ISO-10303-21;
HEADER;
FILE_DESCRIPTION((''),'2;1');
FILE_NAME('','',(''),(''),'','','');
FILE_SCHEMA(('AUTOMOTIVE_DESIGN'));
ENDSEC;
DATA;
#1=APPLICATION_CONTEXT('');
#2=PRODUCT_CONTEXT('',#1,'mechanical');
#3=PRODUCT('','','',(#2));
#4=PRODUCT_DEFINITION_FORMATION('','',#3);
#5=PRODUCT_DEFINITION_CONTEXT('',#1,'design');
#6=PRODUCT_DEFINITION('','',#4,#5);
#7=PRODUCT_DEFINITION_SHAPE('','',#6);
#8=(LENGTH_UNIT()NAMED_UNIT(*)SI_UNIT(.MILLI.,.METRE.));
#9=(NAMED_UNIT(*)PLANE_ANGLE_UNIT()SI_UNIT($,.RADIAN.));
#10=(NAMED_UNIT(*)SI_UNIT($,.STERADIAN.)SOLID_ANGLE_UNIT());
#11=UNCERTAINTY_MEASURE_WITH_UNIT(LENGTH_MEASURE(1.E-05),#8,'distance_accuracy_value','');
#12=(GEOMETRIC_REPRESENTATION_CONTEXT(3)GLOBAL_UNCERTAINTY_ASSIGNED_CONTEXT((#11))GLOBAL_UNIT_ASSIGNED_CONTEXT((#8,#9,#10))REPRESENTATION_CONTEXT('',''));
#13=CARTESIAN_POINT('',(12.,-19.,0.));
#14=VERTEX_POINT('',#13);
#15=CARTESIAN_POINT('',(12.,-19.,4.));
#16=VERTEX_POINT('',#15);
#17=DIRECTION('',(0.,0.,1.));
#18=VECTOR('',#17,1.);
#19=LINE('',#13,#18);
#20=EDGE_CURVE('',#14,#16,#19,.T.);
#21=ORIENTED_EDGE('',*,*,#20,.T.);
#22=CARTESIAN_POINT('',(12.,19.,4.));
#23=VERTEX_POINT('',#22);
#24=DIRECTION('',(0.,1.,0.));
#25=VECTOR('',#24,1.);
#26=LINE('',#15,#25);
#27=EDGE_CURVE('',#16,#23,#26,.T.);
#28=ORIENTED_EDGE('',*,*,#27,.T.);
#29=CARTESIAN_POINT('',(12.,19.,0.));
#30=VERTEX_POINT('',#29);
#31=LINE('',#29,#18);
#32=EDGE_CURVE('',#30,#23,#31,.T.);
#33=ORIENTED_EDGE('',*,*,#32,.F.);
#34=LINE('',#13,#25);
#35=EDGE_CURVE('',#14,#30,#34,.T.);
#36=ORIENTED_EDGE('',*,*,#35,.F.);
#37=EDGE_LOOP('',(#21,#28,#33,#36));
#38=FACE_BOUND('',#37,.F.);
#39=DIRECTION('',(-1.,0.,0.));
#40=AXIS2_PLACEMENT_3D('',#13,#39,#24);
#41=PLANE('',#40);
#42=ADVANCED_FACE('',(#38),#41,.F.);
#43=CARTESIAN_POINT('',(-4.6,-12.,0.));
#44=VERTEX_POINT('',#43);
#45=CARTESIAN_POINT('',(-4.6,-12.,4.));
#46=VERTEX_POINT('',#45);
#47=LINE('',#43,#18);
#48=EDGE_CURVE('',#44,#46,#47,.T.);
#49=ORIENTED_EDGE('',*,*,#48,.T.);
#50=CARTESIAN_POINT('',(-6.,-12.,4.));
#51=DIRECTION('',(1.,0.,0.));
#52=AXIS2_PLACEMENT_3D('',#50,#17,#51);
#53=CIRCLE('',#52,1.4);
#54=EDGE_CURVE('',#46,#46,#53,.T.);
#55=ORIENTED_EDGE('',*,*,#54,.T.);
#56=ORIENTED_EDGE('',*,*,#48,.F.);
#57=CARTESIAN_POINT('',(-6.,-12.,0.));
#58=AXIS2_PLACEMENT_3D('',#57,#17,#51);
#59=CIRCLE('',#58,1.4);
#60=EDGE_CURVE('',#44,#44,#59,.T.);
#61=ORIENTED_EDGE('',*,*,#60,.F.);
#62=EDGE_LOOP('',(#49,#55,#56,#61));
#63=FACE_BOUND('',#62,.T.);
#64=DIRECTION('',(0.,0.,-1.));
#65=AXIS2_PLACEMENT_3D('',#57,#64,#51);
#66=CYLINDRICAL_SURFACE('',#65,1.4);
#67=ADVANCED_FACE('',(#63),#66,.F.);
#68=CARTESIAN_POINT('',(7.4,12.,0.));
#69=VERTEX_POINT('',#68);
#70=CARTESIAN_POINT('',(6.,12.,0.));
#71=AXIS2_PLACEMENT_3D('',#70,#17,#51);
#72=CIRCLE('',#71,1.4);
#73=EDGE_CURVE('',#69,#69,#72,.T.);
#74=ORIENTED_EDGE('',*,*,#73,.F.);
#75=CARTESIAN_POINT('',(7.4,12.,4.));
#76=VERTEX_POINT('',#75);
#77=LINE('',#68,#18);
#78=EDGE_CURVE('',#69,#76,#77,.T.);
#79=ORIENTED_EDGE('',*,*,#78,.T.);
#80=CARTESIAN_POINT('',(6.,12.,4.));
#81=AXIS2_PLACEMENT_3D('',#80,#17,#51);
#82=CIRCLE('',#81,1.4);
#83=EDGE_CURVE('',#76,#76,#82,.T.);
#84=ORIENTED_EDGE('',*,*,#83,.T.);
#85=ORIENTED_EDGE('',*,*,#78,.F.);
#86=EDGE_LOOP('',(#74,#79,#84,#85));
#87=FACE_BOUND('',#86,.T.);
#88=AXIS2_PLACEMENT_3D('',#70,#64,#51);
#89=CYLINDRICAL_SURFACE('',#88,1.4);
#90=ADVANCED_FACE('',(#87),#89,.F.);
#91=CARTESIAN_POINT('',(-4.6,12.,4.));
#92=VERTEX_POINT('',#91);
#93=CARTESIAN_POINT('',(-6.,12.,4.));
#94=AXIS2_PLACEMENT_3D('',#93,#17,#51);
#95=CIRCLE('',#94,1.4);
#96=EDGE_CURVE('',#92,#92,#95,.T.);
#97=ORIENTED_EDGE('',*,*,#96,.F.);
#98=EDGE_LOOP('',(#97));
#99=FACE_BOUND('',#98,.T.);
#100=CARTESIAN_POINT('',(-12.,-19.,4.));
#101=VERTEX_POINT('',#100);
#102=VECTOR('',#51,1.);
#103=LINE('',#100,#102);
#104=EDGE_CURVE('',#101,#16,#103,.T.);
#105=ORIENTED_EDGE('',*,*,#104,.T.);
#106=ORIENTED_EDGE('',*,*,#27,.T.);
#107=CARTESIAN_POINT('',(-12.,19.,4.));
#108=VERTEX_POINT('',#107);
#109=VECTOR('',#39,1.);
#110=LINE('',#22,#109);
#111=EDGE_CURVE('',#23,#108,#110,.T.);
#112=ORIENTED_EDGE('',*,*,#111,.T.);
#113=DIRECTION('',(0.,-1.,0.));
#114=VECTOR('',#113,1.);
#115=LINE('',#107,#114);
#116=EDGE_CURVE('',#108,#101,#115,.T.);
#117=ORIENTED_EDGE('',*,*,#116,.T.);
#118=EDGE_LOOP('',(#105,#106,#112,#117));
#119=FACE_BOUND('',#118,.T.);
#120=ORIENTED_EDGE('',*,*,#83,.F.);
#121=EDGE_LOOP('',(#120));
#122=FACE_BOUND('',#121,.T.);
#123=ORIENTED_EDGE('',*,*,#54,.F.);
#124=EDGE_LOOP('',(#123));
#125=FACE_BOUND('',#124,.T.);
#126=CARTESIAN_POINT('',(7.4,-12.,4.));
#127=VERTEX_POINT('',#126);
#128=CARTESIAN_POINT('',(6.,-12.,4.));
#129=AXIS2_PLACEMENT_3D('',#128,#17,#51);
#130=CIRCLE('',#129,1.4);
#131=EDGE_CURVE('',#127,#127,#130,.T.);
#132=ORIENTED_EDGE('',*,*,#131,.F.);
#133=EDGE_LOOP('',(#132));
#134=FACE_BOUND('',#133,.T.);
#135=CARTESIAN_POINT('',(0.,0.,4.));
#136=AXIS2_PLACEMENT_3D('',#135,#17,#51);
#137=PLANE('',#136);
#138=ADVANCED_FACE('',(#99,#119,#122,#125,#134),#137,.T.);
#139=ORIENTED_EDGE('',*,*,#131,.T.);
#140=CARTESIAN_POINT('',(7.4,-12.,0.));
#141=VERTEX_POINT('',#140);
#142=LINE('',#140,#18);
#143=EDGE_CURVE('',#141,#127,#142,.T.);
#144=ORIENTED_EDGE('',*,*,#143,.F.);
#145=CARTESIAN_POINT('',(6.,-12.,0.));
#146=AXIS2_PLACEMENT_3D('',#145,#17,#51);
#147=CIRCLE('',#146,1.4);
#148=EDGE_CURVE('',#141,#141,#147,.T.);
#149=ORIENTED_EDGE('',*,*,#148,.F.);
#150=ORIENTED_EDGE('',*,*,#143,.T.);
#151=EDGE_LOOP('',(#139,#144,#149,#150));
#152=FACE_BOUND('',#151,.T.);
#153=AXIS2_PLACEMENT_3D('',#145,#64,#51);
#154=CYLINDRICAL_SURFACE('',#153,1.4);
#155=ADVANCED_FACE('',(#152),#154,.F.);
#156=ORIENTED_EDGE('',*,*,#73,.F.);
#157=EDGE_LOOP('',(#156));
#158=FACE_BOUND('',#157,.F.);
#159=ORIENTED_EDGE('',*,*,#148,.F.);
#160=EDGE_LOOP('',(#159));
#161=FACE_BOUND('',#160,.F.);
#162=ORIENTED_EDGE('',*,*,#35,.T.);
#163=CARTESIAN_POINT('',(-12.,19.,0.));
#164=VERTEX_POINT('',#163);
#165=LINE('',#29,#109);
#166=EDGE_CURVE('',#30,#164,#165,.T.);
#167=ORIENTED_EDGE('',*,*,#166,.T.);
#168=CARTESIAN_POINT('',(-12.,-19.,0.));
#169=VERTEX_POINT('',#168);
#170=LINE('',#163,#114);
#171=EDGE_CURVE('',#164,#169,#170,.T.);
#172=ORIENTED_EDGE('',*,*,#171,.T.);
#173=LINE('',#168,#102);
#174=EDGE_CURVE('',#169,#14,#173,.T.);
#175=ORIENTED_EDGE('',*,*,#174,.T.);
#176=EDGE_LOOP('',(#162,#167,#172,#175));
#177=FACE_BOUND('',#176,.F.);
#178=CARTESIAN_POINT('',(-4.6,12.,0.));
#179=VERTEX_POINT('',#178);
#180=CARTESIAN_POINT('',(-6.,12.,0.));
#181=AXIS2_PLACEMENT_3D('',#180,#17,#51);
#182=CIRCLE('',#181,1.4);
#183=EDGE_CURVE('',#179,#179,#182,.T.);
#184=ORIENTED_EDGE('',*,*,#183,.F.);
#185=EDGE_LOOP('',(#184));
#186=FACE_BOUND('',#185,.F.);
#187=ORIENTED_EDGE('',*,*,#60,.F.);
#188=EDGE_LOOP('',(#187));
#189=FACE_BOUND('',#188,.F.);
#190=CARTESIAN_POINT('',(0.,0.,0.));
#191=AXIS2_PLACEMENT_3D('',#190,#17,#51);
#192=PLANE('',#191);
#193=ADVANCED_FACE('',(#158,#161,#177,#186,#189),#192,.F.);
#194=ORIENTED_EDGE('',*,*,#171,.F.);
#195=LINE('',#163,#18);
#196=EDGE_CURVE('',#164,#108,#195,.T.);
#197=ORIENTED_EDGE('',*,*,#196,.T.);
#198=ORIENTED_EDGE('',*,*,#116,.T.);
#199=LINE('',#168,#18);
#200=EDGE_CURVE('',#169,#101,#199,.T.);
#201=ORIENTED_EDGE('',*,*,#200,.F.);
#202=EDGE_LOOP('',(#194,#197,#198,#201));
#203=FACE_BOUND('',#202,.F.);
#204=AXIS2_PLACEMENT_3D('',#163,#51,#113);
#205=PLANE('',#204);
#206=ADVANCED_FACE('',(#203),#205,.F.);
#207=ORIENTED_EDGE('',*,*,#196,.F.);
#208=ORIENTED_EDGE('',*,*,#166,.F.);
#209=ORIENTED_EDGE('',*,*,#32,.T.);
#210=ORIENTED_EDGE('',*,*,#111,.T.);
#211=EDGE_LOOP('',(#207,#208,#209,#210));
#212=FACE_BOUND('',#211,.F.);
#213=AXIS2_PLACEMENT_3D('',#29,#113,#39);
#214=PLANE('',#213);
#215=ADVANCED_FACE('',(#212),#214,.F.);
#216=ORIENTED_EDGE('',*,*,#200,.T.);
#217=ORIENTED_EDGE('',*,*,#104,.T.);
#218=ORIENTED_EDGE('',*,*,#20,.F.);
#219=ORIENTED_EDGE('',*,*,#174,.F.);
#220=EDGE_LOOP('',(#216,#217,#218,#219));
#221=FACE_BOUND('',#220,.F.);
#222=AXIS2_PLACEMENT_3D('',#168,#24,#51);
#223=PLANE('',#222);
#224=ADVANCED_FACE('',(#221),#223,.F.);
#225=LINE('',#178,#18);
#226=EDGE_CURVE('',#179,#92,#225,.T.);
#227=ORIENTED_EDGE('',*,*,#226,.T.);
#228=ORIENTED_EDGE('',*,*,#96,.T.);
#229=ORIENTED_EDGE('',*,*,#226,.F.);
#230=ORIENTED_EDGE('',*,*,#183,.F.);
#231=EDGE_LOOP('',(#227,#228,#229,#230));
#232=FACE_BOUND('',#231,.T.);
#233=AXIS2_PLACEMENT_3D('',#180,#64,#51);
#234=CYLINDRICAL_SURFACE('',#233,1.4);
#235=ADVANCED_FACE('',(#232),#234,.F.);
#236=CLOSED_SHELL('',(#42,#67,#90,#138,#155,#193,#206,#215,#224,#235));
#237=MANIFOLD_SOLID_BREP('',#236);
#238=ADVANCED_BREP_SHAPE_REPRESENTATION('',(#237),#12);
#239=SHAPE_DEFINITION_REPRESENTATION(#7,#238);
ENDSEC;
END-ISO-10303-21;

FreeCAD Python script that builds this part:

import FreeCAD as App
import Part
import Sketcher

V = App.Vector
Q = App.Units.Quantity

doc = App.newDocument("Part")
body = doc.addObject("PartDesign::Body", "Body")

sketch1 = body.newObject("Sketcher::SketchObject", "Sketch")
sketch1.AttachmentSupport = (doc.getObject("XY_Plane"), [""])
sketch1.MapMode = "FlatFace"
sketch1.addGeometry(Part.LineSegment(V(-12, 19, 0), V(-12, -19, 0)), False)
sketch1.addGeometry(Part.LineSegment(V(-12, -19, 0), V(12, -19, 0)), False)
sketch1.addGeometry(Part.LineSegment(V(12, -19, 0), V(12, 19, 0)), False)
sketch1.addGeometry(Part.LineSegment(V(12, 19, 0), V(-12, 19, 0)), False)
sketch1.addGeometry(Part.Circle(V(-6, -12, 0), V(0, 0, 1), 1.4), False)
sketch1.addGeometry(Part.Circle(V(6, -12, 0), V(0, 0, 1), 1.4), False)
sketch1.addGeometry(Part.Circle(V(-6, 12, 0), V(0, 0, 1), 1.4), False)
sketch1.addGeometry(Part.Circle(V(6, 12, 0), V(0, 0, 1), 1.4), False)
sketch1.addConstraint(Sketcher.Constraint("Coincident", 0, 2, 1, 1))
sketch1.addConstraint(Sketcher.Constraint("Coincident", 1, 2, 2, 1))
sketch1.addConstraint(Sketcher.Constraint("Coincident", 2, 2, 3, 1))
sketch1.addConstraint(Sketcher.Constraint("Coincident", 3, 2, 0, 1))
sketch1.addConstraint(Sketcher.Constraint("Vertical", 0))
sketch1.addConstraint(Sketcher.Constraint("Horizontal", 1))
sketch1.addConstraint(Sketcher.Constraint("Vertical", 2))
sketch1.addConstraint(Sketcher.Constraint("Horizontal", 3))
sketch1.addConstraint(Sketcher.Constraint("Equal", 4, 5))
sketch1.addConstraint(Sketcher.Constraint("Equal", 5, 6))
sketch1.addConstraint(Sketcher.Constraint("Equal", 6, 7))
sketch1.addConstraint(Sketcher.Constraint("Symmetric", 5, 3, 6, 3, -1, 1))
sketch1.addConstraint(Sketcher.Constraint("Symmetric", 4, 3, 7, 3, -1, 1))
sketch1.addConstraint(Sketcher.Constraint("Symmetric", 0, 2, 2, 2, -1, 1))
sketch1.addConstraint(Sketcher.Constraint("Symmetric", 4, 3, 5, 3, -2))
sketch1.addConstraint(Sketcher.Constraint("Diameter", 4, Q("2.8 mm")))
sketch1.addConstraint(Sketcher.Constraint("DistanceX", 1, 1, 1, 2, Q("24 mm")))
sketch1.addConstraint(Sketcher.Constraint("DistanceY", 0, 2, 0, 1, Q("38 mm")))
sketch1.addConstraint(Sketcher.Constraint("DistanceX", 4, 3, -1, 1, Q("6 mm")))
sketch1.addConstraint(Sketcher.Constraint("DistanceY", 4, 3, -1, 1, Q("12 mm")))
pad1 = body.newObject("PartDesign::Pad", "Pad")
pad1.Profile = sketch1
pad1.Length = 4

doc.recompute()
